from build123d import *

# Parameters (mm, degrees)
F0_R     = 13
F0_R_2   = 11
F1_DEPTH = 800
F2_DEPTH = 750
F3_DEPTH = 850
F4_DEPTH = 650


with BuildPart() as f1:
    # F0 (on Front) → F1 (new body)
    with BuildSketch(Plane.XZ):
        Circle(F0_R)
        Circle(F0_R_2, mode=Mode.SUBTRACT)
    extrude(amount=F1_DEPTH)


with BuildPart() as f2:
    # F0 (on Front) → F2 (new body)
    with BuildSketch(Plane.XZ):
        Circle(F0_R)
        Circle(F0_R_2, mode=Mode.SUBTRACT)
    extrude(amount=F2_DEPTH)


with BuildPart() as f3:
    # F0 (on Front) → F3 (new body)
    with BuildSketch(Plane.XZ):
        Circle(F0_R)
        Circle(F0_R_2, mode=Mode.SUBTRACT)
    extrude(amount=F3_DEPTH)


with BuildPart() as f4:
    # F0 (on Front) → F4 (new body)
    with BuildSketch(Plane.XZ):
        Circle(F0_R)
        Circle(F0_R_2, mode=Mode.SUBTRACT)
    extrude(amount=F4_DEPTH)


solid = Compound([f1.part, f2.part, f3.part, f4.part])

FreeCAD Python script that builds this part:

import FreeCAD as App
import Part
import Sketcher

doc = App.newDocument("Part")
body = doc.addObject("PartDesign::Body", "Body")

sketch1 = body.newObject("Sketcher::SketchObject", "Sketch")
sketch1.AttachmentSupport = (doc.getObject("XZ_Plane"), [""])
sketch1.MapMode = "FlatFace"
sketch1.addGeometry(Part.Circle(App.Vector(0, 0, 0), App.Vector(0, 0, 1), 13), False)
sketch1.addGeometry(Part.Circle(App.Vector(0, 0, 0), App.Vector(0, 0, 1), 11), False)
sketch1.addConstraint(Sketcher.Constraint("Coincident", 0, 3, -1, 1))
sketch1.addConstraint(Sketcher.Constraint("Coincident", 1, 3, -1, 1))
sketch1.addConstraint(Sketcher.Constraint("Diameter", 0, 26.0))
sketch1.addConstraint(Sketcher.Constraint("Diameter", 1, 22.0))
pad1 = body.newObject("PartDesign::Pad", "Pad")
pad1.Profile = sketch1
pad1.Length = 800
body2 = doc.addObject("PartDesign::Body", "Body001")

sketch2 = body2.newObject("Sketcher::SketchObject", "Sketch001")
sketch2.AttachmentSupport = (doc.getObject("XZ_Plane001"), [""])
sketch2.MapMode = "FlatFace"
sketch2.addGeometry(Part.Circle(App.Vector(0, 0, 0), App.Vector(0, 0, 1), 13), False)
sketch2.addGeometry(Part.Circle(App.Vector(0, 0, 0), App.Vector(0, 0, 1), 11), False)
sketch2.addConstraint(Sketcher.Constraint("Coincident", 0, 3, -1, 1))
sketch2.addConstraint(Sketcher.Constraint("Coincident", 1, 3, -1, 1))
sketch2.addConstraint(Sketcher.Constraint("Diameter", 0, 26.0))
sketch2.addConstraint(Sketcher.Constraint("Diameter", 1, 22.0))
pad2 = body2.newObject("PartDesign::Pad", "Pad001")
pad2.Profile = sketch2
pad2.Length = 750
body3 = doc.addObject("PartDesign::Body", "Body002")

sketch3 = body3.newObject("Sketcher::SketchObject", "Sketch002")
sketch3.AttachmentSupport = (doc.getObject("XZ_Plane002"), [""])
sketch3.MapMode = "FlatFace"
sketch3.addGeometry(Part.Circle(App.Vector(0, 0, 0), App.Vector(0, 0, 1), 13), False)
sketch3.addGeometry(Part.Circle(App.Vector(0, 0, 0), App.Vector(0, 0, 1), 11), False)
sketch3.addConstraint(Sketcher.Constraint("Coincident", 0, 3, -1, 1))
sketch3.addConstraint(Sketcher.Constraint("Coincident", 1, 3, -1, 1))
sketch3.addConstraint(Sketcher.Constraint("Diameter", 0, 26.0))
sketch3.addConstraint(Sketcher.Constraint("Diameter", 1, 22.0))
pad3 = body3.newObject("PartDesign::Pad", "Pad002")
pad3.Profile = sketch3
pad3.Length = 850
body4 = doc.addObject("PartDesign::Body", "Body003")

sketch4 = body4.newObject("Sketcher::SketchObject", "Sketch003")
sketch4.AttachmentSupport = (doc.getObject("XZ_Plane003"), [""])
sketch4.MapMode = "FlatFace"
sketch4.addGeometry(Part.Circle(App.Vector(0, 0, 0), App.Vector(0, 0, 1), 13), False)
sketch4.addGeometry(Part.Circle(App.Vector(0, 0, 0), App.Vector(0, 0, 1), 11), False)
sketch4.addConstraint(Sketcher.Constraint("Coincident", 0, 3, -1, 1))
sketch4.addConstraint(Sketcher.Constraint("Coincident", 1, 3, -1, 1))
sketch4.addConstraint(Sketcher.Constraint("Diameter", 0, 26.0))
sketch4.addConstraint(Sketcher.Constraint("Diameter", 1, 22.0))
pad4 = body4.newObject("PartDesign::Pad", "Pad003")
pad4.Profile = sketch4
pad4.Length = 650

doc.recompute()
